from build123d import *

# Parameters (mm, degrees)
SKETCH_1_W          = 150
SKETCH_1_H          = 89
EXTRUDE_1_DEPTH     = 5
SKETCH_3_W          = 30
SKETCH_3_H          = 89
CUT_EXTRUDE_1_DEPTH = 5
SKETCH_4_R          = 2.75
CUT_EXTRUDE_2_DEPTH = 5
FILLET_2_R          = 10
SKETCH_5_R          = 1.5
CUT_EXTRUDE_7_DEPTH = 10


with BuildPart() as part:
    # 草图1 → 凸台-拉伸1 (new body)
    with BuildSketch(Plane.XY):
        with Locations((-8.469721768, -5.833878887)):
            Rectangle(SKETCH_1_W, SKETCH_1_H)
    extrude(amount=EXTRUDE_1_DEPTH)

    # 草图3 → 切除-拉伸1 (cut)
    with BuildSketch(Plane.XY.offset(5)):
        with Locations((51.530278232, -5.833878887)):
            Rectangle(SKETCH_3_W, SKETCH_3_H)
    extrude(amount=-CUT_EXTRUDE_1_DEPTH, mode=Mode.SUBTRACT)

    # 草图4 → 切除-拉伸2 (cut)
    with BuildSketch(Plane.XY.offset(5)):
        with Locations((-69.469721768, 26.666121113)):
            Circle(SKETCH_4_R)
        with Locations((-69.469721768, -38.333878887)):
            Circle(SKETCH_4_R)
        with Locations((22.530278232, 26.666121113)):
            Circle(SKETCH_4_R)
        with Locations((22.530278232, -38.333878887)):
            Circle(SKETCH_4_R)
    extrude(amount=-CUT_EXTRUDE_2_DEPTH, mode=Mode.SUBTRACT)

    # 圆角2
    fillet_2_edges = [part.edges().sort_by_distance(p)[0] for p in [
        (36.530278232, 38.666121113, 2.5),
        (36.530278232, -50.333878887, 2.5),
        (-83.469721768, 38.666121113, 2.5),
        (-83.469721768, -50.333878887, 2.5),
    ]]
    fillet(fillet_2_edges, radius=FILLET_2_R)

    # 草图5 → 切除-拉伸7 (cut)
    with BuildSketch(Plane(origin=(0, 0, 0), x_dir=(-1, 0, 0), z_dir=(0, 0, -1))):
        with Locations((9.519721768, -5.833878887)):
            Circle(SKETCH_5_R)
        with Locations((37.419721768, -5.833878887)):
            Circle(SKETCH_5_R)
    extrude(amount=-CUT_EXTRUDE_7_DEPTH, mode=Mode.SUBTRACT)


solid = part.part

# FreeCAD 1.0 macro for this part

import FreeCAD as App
import Part
import Sketcher
Q = App.Units.Quantity


def edges_at(feature, points):
    """Names of the edges that pass closest to the given points."""
    edges = feature.Shape.Edges
    near = lambda p: min(range(len(edges)), key=lambda i: edges[i].distToShape(Part.Vertex(*p))[0])
    return sorted({f"Edge{near(p) + 1}" for p in points})


def add_polygon(sketch, points):
    """Adds a closed chain of lines whose ends are joined by coincident constraints."""
    first, n = sketch.GeometryCount, len(points)
    for a, b in zip(points, points[1:] + points[:1]):
        sketch.addGeometry(Part.LineSegment(App.Vector(*a, 0), App.Vector(*b, 0)), False)
    for i in range(n):
        sketch.addConstraint(Sketcher.Constraint("Coincident", first + i, 2, first + (i + 1) % n, 1))

doc = App.newDocument("Part")
body = doc.addObject("PartDesign::Body", "Body")

# Sketch on XY plane
sketch1 = doc.addObject("Sketcher::SketchObject", "Sketch")
body.addObject(sketch1)
sketch1.AttachmentSupport = (doc.XY_Plane, [""])
sketch1.MapMode = "FlatFace"
add_polygon(sketch1, [(-83, 39), (-83, -50), (67, -50), (67, 39)])  # lines 0-3
sketch1.addConstraint(Sketcher.Constraint("Vertical", 0))
sketch1.addConstraint(Sketcher.Constraint("Horizontal", 1))
sketch1.addConstraint(Sketcher.Constraint("Vertical", 2))
sketch1.addConstraint(Sketcher.Constraint("Horizontal", 3))
sketch1.addConstraint(Sketcher.Constraint("DistanceX", 1, 1, 1, 2, Q("150 mm")))
sketch1.addConstraint(Sketcher.Constraint("DistanceY", 0, 2, 0, 1, Q("89 mm")))
sketch1.addConstraint(Sketcher.Constraint("DistanceX", 0, 2, -1, 1, Q("83.469722 mm")))
sketch1.addConstraint(Sketcher.Constraint("DistanceY", 0, 2, -1, 1, Q("50.333879 mm")))
pad1 = doc.addObject("PartDesign::Pad", "Pad")
body.addObject(pad1)
pad1.Profile = sketch1
pad1.Length = 5

# Sketch on XY plane
sketch2 = doc.addObject("Sketcher::SketchObject", "Sketch001")
body.addObject(sketch2)
sketch2.AttachmentSupport = (doc.XY_Plane, [""])
sketch2.MapMode = "FlatFace"
sketch2.AttachmentOffset = App.Placement(App.Vector(0, 0, 5), App.Rotation())
add_polygon(sketch2, [(37, 39), (37, -50), (67, -50), (67, 39)])  # lines 0-3
sketch2.addConstraint(Sketcher.Constraint("Vertical", 0))
sketch2.addConstraint(Sketcher.Constraint("Horizontal", 1))
sketch2.addConstraint(Sketcher.Constraint("Vertical", 2))
sketch2.addConstraint(Sketcher.Constraint("Horizontal", 3))
sketch2.addConstraint(Sketcher.Constraint("DistanceX", 1, 1, 1, 2, Q("30 mm")))
sketch2.addConstraint(Sketcher.Constraint("DistanceY", 0, 2, 0, 1, Q("89 mm")))
sketch2.addConstraint(Sketcher.Constraint("DistanceX", -1, 1, 0, 2, Q("36.530278 mm")))
sketch2.addConstraint(Sketcher.Constraint("DistanceY", 0, 2, -1, 1, Q("50.333879 mm")))
pocket1 = doc.addObject("PartDesign::Pocket", "Pocket")
body.addObject(pocket1)
pocket1.Profile = sketch2
pocket1.Length = 5

# Sketch on XY plane
sketch3 = doc.addObject("Sketcher::SketchObject", "Sketch002")
body.addObject(sketch3)
sketch3.AttachmentSupport = (doc.XY_Plane, [""])
sketch3.MapMode = "FlatFace"
sketch3.AttachmentOffset = App.Placement(App.Vector(0, 0, 5), App.Rotation())
sketch3.addGeometry(Part.Circle(App.Vector(-69.5, 26.7, 0), App.Vector(0, 0, 1), 2.8), False)
sketch3.addGeometry(Part.Circle(App.Vector(-69.5, -38.3, 0), App.Vector(0, 0, 1), 2.8), False)
sketch3.addGeometry(Part.Circle(App.Vector(22.5, 26.7, 0), App.Vector(0, 0, 1), 2.8), False)
sketch3.addGeometry(Part.Circle(App.Vector(22.5, -38.3, 0), App.Vector(0, 0, 1), 2.8), False)
sketch3.addConstraint(Sketcher.Constraint("Equal", 0, 1))
sketch3.addConstraint(Sketcher.Constraint("Equal", 1, 2))
sketch3.addConstraint(Sketcher.Constraint("Equal", 2, 3))
sketch3.addConstraint(Sketcher.Constraint("Horizontal", 0, 3, 2, 3))
sketch3.addConstraint(Sketcher.Constraint("Horizontal", 1, 3, 3, 3))
sketch3.addConstraint(Sketcher.Constraint("Vertical", 0, 3, 1, 3))
sketch3.addConstraint(Sketcher.Constraint("Vertical", 2, 3, 3, 3))
sketch3.addConstraint(Sketcher.Constraint("Diameter", 0, Q("5.5 mm")))
sketch3.addConstraint(Sketcher.Constraint("DistanceY", 1, 3, 0, 3, Q("65 mm")))
sketch3.addConstraint(Sketcher.Constraint("DistanceX", 0, 3, 2, 3, Q("92 mm")))
sketch3.addConstraint(Sketcher.Constraint("DistanceX", 0, 3, -1, 1, Q("69.469722 mm")))
sketch3.addConstraint(Sketcher.Constraint("DistanceY", -1, 1, 0, 3, Q("26.666121 mm")))
pocket2 = doc.addObject("PartDesign::Pocket", "Pocket001")
body.addObject(pocket2)
pocket2.Profile = sketch3
pocket2.Length = 5
doc.recompute()

fillet = doc.addObject("PartDesign::Fillet", "Fillet")
body.addObject(fillet)
fillet.Base = (pocket2, edges_at(pocket2, [
    (36.53, 38.666, 2.5),
    (36.53, -50.334, 2.5),
    (-83.47, 38.666, 2.5),
    (-83.47, -50.334, 2.5),
]))
fillet.Radius = 10

# Sketch on XY plane
sketch4 = doc.addObject("Sketcher::SketchObject", "Sketch003")
body.addObject(sketch4)
sketch4.AttachmentSupport = (doc.XY_Plane, [""])
sketch4.MapMode = "FlatFace"
sketch4.addGeometry(Part.Circle(App.Vector(-9.5, -5.8, 0), App.Vector(0, 0, 1), 1.5), False)
sketch4.addGeometry(Part.Circle(App.Vector(-37.4, -5.8, 0), App.Vector(0, 0, 1), 1.5), False)
sketch4.addConstraint(Sketcher.Constraint("Equal", 0, 1))
sketch4.addConstraint(Sketcher.Constraint("Horizontal", 0, 3, 1, 3))
sketch4.addConstraint(Sketcher.Constraint("Diameter", 0, Q("3 mm")))
sketch4.addConstraint(Sketcher.Constraint("DistanceX", 1, 3, 0, 3, Q("27.9 mm")))
sketch4.addConstraint(Sketcher.Constraint("DistanceX", 0, 3, -1, 1, Q("9.519722 mm")))
sketch4.addConstraint(Sketcher.Constraint("DistanceY", 0, 3, -1, 1, Q("5.833879 mm")))
pocket3 = doc.addObject("PartDesign::Pocket", "Pocket002")
body.addObject(pocket3)
pocket3.Profile = sketch4
pocket3.Length = 10
pocket3.Reversed = True

doc.recompute()
